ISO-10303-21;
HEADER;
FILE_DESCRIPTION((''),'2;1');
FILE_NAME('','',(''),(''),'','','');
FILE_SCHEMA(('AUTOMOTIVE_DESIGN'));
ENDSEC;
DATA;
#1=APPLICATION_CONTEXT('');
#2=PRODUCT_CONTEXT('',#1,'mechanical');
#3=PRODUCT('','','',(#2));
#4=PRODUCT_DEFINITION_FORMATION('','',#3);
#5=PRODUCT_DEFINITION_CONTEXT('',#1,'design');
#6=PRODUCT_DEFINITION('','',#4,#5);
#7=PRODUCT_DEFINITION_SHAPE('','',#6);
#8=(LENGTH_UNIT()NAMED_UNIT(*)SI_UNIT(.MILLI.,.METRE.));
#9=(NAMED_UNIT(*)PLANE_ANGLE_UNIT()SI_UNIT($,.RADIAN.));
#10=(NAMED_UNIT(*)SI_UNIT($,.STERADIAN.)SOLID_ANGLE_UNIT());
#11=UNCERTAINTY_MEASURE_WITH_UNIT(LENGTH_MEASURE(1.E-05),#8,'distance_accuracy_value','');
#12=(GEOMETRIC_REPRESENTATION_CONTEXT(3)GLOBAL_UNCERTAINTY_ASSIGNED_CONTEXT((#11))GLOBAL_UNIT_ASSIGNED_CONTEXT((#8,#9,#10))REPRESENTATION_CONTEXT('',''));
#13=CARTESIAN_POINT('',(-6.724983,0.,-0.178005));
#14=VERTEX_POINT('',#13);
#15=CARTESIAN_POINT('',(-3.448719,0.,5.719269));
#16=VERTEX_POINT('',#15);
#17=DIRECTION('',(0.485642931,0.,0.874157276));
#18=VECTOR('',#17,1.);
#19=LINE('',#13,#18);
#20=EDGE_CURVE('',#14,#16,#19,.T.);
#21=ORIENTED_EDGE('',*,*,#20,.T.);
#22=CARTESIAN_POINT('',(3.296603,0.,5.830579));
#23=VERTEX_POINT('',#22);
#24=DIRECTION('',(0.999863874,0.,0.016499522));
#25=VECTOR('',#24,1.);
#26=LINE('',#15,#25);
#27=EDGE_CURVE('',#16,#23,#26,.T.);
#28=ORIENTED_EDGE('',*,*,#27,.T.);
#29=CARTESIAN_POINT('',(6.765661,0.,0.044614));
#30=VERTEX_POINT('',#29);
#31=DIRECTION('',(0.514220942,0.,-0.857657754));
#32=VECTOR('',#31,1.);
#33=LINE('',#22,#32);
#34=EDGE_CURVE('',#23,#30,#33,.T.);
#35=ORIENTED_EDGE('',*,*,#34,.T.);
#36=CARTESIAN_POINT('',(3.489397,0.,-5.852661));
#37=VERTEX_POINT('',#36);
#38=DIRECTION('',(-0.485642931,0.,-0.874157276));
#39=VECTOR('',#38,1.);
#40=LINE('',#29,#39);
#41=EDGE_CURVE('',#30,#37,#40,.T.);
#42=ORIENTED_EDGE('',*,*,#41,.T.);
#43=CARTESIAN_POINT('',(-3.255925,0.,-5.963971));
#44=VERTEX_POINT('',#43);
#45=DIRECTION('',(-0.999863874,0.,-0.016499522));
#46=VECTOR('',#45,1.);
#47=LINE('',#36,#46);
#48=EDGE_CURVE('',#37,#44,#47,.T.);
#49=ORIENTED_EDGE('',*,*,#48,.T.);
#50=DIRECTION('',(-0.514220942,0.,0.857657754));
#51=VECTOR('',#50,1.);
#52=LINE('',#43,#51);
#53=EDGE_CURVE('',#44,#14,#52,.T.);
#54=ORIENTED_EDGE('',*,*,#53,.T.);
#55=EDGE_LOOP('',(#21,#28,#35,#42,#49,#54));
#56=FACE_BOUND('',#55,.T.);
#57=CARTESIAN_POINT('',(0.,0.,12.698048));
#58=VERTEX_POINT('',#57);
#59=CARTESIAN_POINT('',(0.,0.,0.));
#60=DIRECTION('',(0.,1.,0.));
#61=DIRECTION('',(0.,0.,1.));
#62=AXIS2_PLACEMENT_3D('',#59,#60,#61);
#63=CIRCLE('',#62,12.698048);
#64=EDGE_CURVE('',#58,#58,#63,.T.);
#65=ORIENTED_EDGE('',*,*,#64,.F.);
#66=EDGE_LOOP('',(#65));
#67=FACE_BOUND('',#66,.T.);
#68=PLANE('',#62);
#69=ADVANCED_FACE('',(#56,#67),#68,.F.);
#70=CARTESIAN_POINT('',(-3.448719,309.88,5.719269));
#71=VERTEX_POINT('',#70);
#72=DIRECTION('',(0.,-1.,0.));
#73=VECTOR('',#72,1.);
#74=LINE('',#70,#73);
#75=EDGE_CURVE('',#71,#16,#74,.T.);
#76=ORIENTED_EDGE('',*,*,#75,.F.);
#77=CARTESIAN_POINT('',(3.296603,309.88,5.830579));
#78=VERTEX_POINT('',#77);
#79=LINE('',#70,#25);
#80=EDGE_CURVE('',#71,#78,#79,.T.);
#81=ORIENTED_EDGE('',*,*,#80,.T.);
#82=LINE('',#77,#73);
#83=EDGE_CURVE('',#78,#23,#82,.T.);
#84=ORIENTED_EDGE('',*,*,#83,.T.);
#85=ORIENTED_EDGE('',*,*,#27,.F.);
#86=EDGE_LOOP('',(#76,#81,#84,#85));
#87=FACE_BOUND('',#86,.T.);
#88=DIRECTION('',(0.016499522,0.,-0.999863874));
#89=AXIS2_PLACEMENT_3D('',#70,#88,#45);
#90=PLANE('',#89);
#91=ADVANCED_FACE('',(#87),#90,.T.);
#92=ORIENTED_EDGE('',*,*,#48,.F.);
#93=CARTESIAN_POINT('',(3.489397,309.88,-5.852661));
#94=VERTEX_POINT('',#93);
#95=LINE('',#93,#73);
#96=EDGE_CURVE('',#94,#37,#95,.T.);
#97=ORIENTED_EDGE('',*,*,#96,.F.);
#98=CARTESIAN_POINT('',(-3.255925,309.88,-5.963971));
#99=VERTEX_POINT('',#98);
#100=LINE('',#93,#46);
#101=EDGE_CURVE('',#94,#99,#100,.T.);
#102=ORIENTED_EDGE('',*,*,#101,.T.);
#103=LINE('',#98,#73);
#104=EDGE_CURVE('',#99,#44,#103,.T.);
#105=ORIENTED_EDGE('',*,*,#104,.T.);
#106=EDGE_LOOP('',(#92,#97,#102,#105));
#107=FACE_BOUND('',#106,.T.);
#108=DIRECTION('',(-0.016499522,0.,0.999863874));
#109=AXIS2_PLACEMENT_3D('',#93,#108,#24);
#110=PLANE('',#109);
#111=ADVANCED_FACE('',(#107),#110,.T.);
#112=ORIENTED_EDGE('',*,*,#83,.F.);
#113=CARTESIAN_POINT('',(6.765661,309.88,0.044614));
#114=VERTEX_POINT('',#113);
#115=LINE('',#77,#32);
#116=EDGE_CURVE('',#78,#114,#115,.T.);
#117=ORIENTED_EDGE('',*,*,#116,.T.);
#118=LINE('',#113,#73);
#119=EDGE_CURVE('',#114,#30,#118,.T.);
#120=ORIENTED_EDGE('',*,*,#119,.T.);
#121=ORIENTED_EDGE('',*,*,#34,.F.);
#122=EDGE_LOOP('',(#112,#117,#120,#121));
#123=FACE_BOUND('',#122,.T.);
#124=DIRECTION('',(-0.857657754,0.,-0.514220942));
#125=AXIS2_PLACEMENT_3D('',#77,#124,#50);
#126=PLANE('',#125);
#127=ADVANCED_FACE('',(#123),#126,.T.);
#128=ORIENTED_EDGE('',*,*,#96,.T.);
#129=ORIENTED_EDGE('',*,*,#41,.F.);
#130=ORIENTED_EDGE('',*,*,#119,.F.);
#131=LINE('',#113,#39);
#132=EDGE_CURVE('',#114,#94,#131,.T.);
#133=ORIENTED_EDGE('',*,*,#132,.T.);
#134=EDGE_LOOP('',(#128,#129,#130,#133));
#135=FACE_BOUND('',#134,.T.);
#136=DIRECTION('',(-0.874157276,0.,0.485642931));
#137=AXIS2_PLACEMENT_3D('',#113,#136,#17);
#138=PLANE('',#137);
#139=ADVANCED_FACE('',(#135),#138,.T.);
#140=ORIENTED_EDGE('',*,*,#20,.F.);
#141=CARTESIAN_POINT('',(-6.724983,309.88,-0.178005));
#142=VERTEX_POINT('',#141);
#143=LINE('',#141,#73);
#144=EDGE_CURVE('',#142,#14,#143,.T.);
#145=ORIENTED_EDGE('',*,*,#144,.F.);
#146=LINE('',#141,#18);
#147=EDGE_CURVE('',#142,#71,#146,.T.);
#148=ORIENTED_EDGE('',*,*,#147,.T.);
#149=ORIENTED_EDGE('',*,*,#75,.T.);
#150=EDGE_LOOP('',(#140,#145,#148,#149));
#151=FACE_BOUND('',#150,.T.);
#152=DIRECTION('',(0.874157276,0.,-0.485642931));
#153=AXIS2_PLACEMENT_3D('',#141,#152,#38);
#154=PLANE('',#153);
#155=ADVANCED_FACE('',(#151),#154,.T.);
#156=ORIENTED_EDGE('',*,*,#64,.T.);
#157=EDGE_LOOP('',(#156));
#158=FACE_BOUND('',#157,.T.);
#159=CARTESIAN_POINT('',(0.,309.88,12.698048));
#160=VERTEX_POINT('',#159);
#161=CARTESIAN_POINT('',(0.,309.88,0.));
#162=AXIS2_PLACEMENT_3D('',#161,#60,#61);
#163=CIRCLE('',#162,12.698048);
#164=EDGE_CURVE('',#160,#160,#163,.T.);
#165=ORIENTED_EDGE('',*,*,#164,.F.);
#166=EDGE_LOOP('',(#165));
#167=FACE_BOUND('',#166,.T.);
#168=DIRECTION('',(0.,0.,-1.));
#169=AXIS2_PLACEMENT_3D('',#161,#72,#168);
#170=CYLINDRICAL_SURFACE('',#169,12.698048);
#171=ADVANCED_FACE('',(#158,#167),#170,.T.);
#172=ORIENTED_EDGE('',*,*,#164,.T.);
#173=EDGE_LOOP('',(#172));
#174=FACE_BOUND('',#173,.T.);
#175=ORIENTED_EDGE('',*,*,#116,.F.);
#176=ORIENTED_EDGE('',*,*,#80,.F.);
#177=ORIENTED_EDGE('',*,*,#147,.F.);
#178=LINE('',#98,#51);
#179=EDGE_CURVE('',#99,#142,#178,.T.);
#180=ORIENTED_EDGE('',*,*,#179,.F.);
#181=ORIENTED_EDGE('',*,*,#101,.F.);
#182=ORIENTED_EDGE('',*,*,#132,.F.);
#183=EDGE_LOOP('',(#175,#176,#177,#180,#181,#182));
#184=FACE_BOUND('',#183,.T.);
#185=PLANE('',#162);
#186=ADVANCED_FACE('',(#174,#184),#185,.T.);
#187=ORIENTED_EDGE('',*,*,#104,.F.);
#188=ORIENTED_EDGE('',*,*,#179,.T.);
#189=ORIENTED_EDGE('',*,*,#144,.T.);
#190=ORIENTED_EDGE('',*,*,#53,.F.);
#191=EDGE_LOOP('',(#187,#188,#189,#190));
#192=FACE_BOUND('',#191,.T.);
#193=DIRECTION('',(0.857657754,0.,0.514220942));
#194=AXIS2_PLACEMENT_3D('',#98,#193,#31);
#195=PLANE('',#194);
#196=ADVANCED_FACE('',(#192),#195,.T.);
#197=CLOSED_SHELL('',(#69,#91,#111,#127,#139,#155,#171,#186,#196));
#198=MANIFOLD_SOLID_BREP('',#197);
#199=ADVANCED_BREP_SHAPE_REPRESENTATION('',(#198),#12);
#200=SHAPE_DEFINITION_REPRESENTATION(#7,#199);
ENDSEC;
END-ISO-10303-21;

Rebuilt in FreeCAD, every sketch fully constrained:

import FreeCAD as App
import Part
import Sketcher

V = App.Vector
Q = App.Units.Quantity

doc = App.newDocument("Part")
body = doc.addObject("PartDesign::Body", "Body")

sketch1 = doc.addObject("Sketcher::SketchObject", "Sketch")
body.addObject(sketch1)
sketch1.AttachmentSupport = (doc.XZ_Plane, [""])
sketch1.MapMode = "FlatFace"
sketch1.addGeometry([
    Part.Circle(V(0, 0, 0), V(0, 0, 1), 13),
    Part.LineSegment(V(7, 0, 0), V(3, 6, 0)),
    Part.LineSegment(V(3, 6, 0), V(-3, 6, 0)),
    Part.LineSegment(V(-3, 6, 0), V(-7, 0, 0)),
    Part.LineSegment(V(-7, 0, 0), V(-3, -6, 0)),
    Part.LineSegment(V(-3, -6, 0), V(3, -6, 0)),
    Part.LineSegment(V(3, -6, 0), V(7, 0, 0)),
], False)
sketch1.addConstraint([
    Sketcher.Constraint("Coincident", 1, 2, 2, 1),
    Sketcher.Constraint("Coincident", 2, 2, 3, 1),
    Sketcher.Constraint("Coincident", 3, 2, 4, 1),
    Sketcher.Constraint("Coincident", 4, 2, 5, 1),
    Sketcher.Constraint("Coincident", 5, 2, 6, 1),
    Sketcher.Constraint("Coincident", 6, 2, 1, 1),
    Sketcher.Constraint("Coincident", 0, 3, -1, 1),
    Sketcher.Constraint("Parallel", 1, 4),
    Sketcher.Constraint("Parallel", 2, 5),
    Sketcher.Constraint("Parallel", 3, 6),
    Sketcher.Constraint("Equal", 1, 2),
    Sketcher.Constraint("Equal", 2, 3),
    Sketcher.Constraint("Equal", 3, 4),
    Sketcher.Constraint("Distance", 1, Q("0.2656 in")),
    Sketcher.Constraint("Diameter", 0, Q("25.396097 mm")),
    Sketcher.Constraint("DistanceY", -1, 1, 1, 2, Q("5.830579 mm")),
    Sketcher.Constraint("DistanceX", 2, 2, -1, 1, Q("3.448719 mm")),
    Sketcher.Constraint("DistanceY", -1, 1, 2, 2, Q("5.719269 mm")),
    Sketcher.Constraint("DistanceY", 4, 2, -1, 1, Q("5.963971 mm")),
    Sketcher.Constraint("DistanceX", -1, 1, 6, 2, Q("6.765661 mm")),
])
pad1 = doc.addObject("PartDesign::Pad", "Pad")
body.addObject(pad1)
pad1.Profile = sketch1
pad1.Length = Q("12.2 in")
pad1.Reversed = True

doc.recompute()
